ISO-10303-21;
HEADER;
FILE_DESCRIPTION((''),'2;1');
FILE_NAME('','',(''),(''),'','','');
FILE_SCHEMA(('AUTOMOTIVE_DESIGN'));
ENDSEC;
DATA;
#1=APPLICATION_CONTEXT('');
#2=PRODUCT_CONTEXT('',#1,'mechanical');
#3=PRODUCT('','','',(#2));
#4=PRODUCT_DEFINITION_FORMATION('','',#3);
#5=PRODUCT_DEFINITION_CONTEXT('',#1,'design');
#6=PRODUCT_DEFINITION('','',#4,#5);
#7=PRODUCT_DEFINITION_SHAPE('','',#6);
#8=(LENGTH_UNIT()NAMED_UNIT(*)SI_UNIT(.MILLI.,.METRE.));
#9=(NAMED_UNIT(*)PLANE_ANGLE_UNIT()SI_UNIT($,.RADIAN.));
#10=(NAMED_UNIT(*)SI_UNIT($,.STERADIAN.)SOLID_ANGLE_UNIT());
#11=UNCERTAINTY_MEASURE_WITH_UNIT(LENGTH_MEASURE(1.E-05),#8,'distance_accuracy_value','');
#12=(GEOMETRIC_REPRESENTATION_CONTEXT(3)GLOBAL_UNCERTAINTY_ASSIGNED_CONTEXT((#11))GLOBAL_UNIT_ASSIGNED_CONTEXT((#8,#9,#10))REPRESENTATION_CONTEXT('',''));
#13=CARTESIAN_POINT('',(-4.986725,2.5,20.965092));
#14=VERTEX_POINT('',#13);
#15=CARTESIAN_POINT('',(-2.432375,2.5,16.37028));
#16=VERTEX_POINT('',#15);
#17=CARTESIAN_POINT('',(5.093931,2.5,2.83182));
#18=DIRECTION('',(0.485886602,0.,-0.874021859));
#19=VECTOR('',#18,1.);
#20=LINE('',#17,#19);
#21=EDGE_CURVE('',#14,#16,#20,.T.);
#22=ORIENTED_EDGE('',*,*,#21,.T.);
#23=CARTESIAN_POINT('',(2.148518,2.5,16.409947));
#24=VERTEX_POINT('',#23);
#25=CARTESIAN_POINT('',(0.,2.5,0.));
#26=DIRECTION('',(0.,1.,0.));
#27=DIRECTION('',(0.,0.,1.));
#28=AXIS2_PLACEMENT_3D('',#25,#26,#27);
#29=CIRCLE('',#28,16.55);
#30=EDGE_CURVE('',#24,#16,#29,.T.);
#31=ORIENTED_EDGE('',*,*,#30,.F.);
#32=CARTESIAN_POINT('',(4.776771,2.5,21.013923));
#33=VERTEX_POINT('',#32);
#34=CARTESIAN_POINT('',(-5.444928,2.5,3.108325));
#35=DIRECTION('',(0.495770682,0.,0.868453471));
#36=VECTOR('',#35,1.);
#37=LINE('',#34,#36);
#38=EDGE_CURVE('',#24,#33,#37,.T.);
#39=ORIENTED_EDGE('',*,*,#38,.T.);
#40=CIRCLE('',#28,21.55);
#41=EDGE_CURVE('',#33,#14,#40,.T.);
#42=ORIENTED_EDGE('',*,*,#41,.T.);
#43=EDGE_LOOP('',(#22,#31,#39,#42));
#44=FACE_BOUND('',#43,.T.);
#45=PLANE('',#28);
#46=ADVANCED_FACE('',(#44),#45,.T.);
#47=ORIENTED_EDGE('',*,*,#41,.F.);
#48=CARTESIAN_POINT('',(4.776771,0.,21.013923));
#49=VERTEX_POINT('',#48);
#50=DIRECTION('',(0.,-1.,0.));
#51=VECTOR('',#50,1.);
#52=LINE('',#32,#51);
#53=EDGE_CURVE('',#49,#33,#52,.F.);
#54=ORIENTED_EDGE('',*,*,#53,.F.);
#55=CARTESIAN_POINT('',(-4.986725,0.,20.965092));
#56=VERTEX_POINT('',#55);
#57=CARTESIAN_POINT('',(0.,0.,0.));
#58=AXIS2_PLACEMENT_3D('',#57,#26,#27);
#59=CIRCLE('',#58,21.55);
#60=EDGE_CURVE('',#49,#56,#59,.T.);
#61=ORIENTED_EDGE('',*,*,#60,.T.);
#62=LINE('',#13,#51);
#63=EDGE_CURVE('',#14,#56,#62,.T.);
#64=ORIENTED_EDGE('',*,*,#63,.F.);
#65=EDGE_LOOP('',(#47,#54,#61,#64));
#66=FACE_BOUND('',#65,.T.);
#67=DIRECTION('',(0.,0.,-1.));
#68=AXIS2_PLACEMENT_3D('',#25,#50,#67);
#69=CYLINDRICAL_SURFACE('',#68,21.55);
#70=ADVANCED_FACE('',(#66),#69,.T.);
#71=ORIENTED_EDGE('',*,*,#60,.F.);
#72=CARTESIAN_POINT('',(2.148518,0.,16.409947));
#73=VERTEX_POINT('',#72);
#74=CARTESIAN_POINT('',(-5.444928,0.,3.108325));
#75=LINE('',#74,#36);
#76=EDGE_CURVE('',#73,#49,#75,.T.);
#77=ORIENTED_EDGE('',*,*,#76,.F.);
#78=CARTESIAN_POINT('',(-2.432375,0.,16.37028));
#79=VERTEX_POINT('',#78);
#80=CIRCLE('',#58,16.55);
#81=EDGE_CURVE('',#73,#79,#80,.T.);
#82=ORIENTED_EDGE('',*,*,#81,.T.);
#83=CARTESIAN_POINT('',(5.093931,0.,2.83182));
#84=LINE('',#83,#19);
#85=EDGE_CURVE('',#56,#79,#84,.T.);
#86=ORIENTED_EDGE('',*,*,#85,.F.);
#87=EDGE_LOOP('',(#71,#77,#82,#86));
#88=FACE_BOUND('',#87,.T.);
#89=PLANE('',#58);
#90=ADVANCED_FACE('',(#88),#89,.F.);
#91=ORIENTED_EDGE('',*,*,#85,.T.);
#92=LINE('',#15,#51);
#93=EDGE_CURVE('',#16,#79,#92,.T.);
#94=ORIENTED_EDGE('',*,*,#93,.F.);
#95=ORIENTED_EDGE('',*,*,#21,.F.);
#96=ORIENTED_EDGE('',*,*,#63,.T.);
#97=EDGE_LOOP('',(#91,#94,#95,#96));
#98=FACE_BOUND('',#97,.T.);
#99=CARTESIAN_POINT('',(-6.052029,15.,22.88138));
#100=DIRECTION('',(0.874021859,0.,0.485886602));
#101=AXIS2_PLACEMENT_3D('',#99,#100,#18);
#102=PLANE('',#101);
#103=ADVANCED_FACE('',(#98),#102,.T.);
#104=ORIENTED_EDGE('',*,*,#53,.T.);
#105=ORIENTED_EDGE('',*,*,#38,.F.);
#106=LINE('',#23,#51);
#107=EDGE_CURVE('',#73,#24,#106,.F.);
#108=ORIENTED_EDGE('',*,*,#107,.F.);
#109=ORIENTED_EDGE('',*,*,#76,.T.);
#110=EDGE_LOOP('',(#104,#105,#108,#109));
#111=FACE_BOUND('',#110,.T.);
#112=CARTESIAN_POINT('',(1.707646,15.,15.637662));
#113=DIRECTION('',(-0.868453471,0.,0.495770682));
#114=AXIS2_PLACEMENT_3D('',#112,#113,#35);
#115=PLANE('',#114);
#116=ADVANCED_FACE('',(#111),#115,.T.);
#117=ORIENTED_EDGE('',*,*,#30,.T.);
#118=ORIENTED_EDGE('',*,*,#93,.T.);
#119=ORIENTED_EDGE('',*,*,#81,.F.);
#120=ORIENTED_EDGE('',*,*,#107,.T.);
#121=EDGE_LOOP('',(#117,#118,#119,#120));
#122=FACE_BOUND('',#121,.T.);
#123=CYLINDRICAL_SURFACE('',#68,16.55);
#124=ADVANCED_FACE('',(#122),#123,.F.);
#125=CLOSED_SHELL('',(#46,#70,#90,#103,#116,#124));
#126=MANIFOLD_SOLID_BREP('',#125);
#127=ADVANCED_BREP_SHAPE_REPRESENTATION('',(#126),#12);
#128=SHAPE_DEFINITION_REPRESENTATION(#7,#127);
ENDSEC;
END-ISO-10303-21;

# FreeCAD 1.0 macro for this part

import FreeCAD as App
import Part
import Sketcher

V = App.Vector
Q = App.Units.Quantity

doc = App.newDocument("Part")
body = doc.addObject("PartDesign::Body", "Body")

# Sketch on XZ plane
sketch1 = doc.addObject("Sketcher::SketchObject", "Sketch")
body.addObject(sketch1)
sketch1.AttachmentSupport = (doc.XZ_Plane, [""])
sketch1.MapMode = "FlatFace"
sketch1.addGeometry([
    Part.Circle(V(0, 0, 0), V(0, 0, 1), 21.55),
    Part.Circle(V(0, 0, 0), V(0, 0, 1), 16.55),
], False)
sketch1.addConstraint([
    Sketcher.Constraint("Coincident", 0, 3, -1, 1),
    Sketcher.Constraint("Coincident", 1, 3, -1, 1),
    Sketcher.Constraint("Diameter", 0, Q("43.1 mm")),
    Sketcher.Constraint("Diameter", 1, Q("33.1 mm")),
])
pad1 = doc.addObject("PartDesign::Pad", "Pad")
body.addObject(pad1)
pad1.Profile = sketch1
pad1.Length = 2.5
pad1.Reversed = True

# Sketch on XZ plane
sketch2 = doc.addObject("Sketcher::SketchObject", "Sketch001")
body.addObject(sketch2)
sketch2.AttachmentSupport = (doc.XZ_Plane, [""])
sketch2.MapMode = "FlatFace"
sketch2.addGeometry([
    Part.LineSegment(V(-6.052029, 22.88138, 0), V(5.84284, 22.88138, 0)),
    Part.LineSegment(V(5.84284, 22.88138, 0), V(1.707646, 15.637662, 0)),
    Part.LineSegment(V(1.707646, 15.637662, 0), V(-2.025098, 15.637662, 0)),
    Part.LineSegment(V(-2.025098, 15.637662, 0), V(-6.052029, 22.88138, 0)),
], False)
sketch2.addConstraint([
    Sketcher.Constraint("Coincident", 0, 2, 1, 1),
    Sketcher.Constraint("Coincident", 1, 2, 2, 1),
    Sketcher.Constraint("Coincident", 2, 2, 3, 1),
    Sketcher.Constraint("Coincident", 3, 2, 0, 1),
    Sketcher.Constraint("Horizontal", 0),
    Sketcher.Constraint("Horizontal", 2),
    Sketcher.Constraint("Distance", 3, Q("8.2878 mm")),
    Sketcher.Constraint("DistanceX", 0, 1, 0, 2, Q("11.894869 mm")),
    Sketcher.Constraint("Distance", 1, Q("8.34094 mm")),
    Sketcher.Constraint("DistanceX", 2, 2, 2, 1, Q("3.732744 mm")),
    Sketcher.Constraint("DistanceX", -1, 1, 0, 2, Q("5.84284 mm")),
    Sketcher.Constraint("DistanceY", -1, 1, 0, 2, Q("22.88138 mm")),
])
pocket1 = doc.addObject("PartDesign::Pocket", "Pocket")
body.addObject(pocket1)
pocket1.Profile = sketch2
pocket1.Type = "ThroughAll"
pocket1.Midplane = True

doc.recompute()
